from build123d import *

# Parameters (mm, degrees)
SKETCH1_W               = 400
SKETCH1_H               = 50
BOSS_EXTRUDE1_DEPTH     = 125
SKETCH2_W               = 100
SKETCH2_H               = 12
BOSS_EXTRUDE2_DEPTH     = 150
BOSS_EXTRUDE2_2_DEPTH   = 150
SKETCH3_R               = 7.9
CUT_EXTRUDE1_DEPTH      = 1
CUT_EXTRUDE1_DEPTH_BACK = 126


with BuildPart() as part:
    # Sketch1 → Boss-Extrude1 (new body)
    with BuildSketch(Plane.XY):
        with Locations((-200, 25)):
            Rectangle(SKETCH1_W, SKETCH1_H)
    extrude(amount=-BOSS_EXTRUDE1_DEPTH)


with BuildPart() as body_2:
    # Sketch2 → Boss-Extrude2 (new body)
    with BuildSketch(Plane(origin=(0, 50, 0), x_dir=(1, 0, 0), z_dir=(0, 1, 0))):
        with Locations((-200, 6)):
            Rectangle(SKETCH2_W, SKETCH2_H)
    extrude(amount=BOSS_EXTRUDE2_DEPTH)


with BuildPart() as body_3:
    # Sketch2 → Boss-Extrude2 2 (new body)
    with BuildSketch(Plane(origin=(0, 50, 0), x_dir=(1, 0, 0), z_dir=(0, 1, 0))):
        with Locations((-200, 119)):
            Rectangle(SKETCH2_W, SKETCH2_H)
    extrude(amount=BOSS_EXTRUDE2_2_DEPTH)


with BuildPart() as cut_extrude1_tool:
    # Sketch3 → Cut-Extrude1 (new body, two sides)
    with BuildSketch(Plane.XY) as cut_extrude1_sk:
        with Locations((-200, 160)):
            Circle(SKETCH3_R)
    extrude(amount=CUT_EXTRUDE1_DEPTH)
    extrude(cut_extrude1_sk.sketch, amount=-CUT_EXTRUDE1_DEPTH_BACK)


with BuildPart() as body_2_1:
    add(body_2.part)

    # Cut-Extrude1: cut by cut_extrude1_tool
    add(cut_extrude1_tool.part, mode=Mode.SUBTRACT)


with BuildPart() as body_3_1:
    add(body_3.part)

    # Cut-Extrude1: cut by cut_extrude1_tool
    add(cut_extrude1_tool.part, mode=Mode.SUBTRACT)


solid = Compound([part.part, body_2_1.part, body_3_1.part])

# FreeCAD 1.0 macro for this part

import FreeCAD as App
import Part
import Sketcher

V = App.Vector
Q = App.Units.Quantity

doc = App.newDocument("Part")
body = doc.addObject("PartDesign::Body", "Body")

sketch1 = doc.addObject("Sketcher::SketchObject", "Sketch")
body.addObject(sketch1)
sketch1.AttachmentSupport = (doc.XY_Plane, [""])
sketch1.MapMode = "FlatFace"
sketch1.addGeometry(Part.LineSegment(V(-400, 50, 0), V(-400, 0, 0)), False)
sketch1.addGeometry(Part.LineSegment(V(-400, 0, 0), V(0, 0, 0)), False)
sketch1.addGeometry(Part.LineSegment(V(0, 0, 0), V(0, 50, 0)), False)
sketch1.addGeometry(Part.LineSegment(V(0, 50, 0), V(-400, 50, 0)), False)
sketch1.addConstraint(Sketcher.Constraint("Coincident", 0, 2, 1, 1))
sketch1.addConstraint(Sketcher.Constraint("Coincident", 1, 2, 2, 1))
sketch1.addConstraint(Sketcher.Constraint("Coincident", 2, 2, 3, 1))
sketch1.addConstraint(Sketcher.Constraint("Coincident", 3, 2, 0, 1))
sketch1.addConstraint(Sketcher.Constraint("Vertical", 0))
sketch1.addConstraint(Sketcher.Constraint("Horizontal", 1))
sketch1.addConstraint(Sketcher.Constraint("Vertical", 2))
sketch1.addConstraint(Sketcher.Constraint("Horizontal", 3))
sketch1.addConstraint(Sketcher.Constraint("Coincident", 1, 2, -1, 1))
sketch1.addConstraint(Sketcher.Constraint("DistanceX", 1, 1, 1, 2, Q("400 mm")))
sketch1.addConstraint(Sketcher.Constraint("DistanceY", 0, 2, 0, 1, Q("50 mm")))
pad1 = doc.addObject("PartDesign::Pad", "Pad")
body.addObject(pad1)
pad1.Profile = sketch1
pad1.Length = 125
pad1.Reversed = True
body2 = doc.addObject("PartDesign::Body", "Body001")

sketch2 = doc.addObject("Sketcher::SketchObject", "Sketch001")
body2.addObject(sketch2)
sketch2.AttachmentSupport = (doc.getObject("XZ_Plane001"), [""])
sketch2.MapMode = "FlatFace"
sketch2.AttachmentOffset = App.Placement(V(0, 0, -50), App.Rotation())
sketch2.addGeometry(Part.LineSegment(V(-250, -12, 0), V(-250, 0, 0)), False)
sketch2.addGeometry(Part.LineSegment(V(-250, 0, 0), V(-150, 0, 0)), False)
sketch2.addGeometry(Part.LineSegment(V(-150, 0, 0), V(-150, -12, 0)), False)
sketch2.addGeometry(Part.LineSegment(V(-150, -12, 0), V(-250, -12, 0)), False)
sketch2.addConstraint(Sketcher.Constraint("Coincident", 0, 2, 1, 1))
sketch2.addConstraint(Sketcher.Constraint("Coincident", 1, 2, 2, 1))
sketch2.addConstraint(Sketcher.Constraint("Coincident", 2, 2, 3, 1))
sketch2.addConstraint(Sketcher.Constraint("Coincident", 3, 2, 0, 1))
sketch2.addConstraint(Sketcher.Constraint("Vertical", 0))
sketch2.addConstraint(Sketcher.Constraint("Horizontal", 1))
sketch2.addConstraint(Sketcher.Constraint("Vertical", 2))
sketch2.addConstraint(Sketcher.Constraint("Horizontal", 3))
sketch2.addConstraint(Sketcher.Constraint("PointOnObject", 0, 2, -1))
sketch2.addConstraint(Sketcher.Constraint("DistanceX", 1, 1, 1, 2, Q("100 mm")))
sketch2.addConstraint(Sketcher.Constraint("DistanceY", 0, 1, 0, 2, Q("12 mm")))
sketch2.addConstraint(Sketcher.Constraint("DistanceX", 0, 2, -1, 1, Q("250 mm")))
pad2 = doc.addObject("PartDesign::Pad", "Pad001")
body2.addObject(pad2)
pad2.Profile = sketch2
pad2.Length = 150
pad2.Reversed = True
body3 = doc.addObject("PartDesign::Body", "Body002")

sketch3 = doc.addObject("Sketcher::SketchObject", "Sketch002")
body3.addObject(sketch3)
sketch3.AttachmentSupport = (doc.getObject("XZ_Plane002"), [""])
sketch3.MapMode = "FlatFace"
sketch3.AttachmentOffset = App.Placement(V(0, 0, -50), App.Rotation())
sketch3.addGeometry(Part.LineSegment(V(-250, -125, 0), V(-250, -113, 0)), False)
sketch3.addGeometry(Part.LineSegment(V(-250, -113, 0), V(-150, -113, 0)), False)
sketch3.addGeometry(Part.LineSegment(V(-150, -113, 0), V(-150, -125, 0)), False)
sketch3.addGeometry(Part.LineSegment(V(-150, -125, 0), V(-250, -125, 0)), False)
sketch3.addConstraint(Sketcher.Constraint("Coincident", 0, 2, 1, 1))
sketch3.addConstraint(Sketcher.Constraint("Coincident", 1, 2, 2, 1))
sketch3.addConstraint(Sketcher.Constraint("Coincident", 2, 2, 3, 1))
sketch3.addConstraint(Sketcher.Constraint("Coincident", 3, 2, 0, 1))
sketch3.addConstraint(Sketcher.Constraint("Vertical", 0))
sketch3.addConstraint(Sketcher.Constraint("Horizontal", 1))
sketch3.addConstraint(Sketcher.Constraint("Vertical", 2))
sketch3.addConstraint(Sketcher.Constraint("Horizontal", 3))
sketch3.addConstraint(Sketcher.Constraint("DistanceX", 1, 1, 1, 2, Q("100 mm")))
sketch3.addConstraint(Sketcher.Constraint("DistanceY", 0, 1, 0, 2, Q("12 mm")))
sketch3.addConstraint(Sketcher.Constraint("DistanceX", 0, 2, -1, 1, Q("250 mm")))
sketch3.addConstraint(Sketcher.Constraint("DistanceY", 0, 2, -1, 1, Q("113 mm")))
pad3 = doc.addObject("PartDesign::Pad", "Pad002")
body3.addObject(pad3)
pad3.Profile = sketch3
pad3.Length = 150
pad3.Reversed = True
body4 = doc.addObject("PartDesign::Body", "Body003")

sketch4 = doc.addObject("Sketcher::SketchObject", "Sketch003")
body4.addObject(sketch4)
sketch4.AttachmentSupport = (doc.getObject("XY_Plane003"), [""])
sketch4.MapMode = "FlatFace"
sketch4.addGeometry(Part.Circle(V(-200, 160, 0), V(0, 0, 1), 8), False)
sketch4.addConstraint(Sketcher.Constraint("Diameter", 0, Q("15.8 mm")))
sketch4.addConstraint(Sketcher.Constraint("DistanceX", 0, 3, -1, 1, Q("200 mm")))
sketch4.addConstraint(Sketcher.Constraint("DistanceY", -1, 1, 0, 3, Q("160 mm")))
pad4 = doc.addObject("PartDesign::Pad", "Pad003")
body4.addObject(pad4)
pad4.Profile = sketch4
pad4.Type = "TwoLengths"
pad4.Length = 1
pad4.Length2 = 126
doc.recompute()

body5 = doc.addObject("PartDesign::Body", "Body004")
body5.BaseFeature = body4
boolean = doc.addObject("PartDesign::Boolean", "Boolean")
body2.addObject(boolean)
boolean.Type = "Cut"
boolean.addObjects([body5])
doc.recompute()

boolean2 = doc.addObject("PartDesign::Boolean", "Boolean001")
body3.addObject(boolean2)
boolean2.Type = "Cut"
boolean2.addObjects([body4])

doc.recompute()
